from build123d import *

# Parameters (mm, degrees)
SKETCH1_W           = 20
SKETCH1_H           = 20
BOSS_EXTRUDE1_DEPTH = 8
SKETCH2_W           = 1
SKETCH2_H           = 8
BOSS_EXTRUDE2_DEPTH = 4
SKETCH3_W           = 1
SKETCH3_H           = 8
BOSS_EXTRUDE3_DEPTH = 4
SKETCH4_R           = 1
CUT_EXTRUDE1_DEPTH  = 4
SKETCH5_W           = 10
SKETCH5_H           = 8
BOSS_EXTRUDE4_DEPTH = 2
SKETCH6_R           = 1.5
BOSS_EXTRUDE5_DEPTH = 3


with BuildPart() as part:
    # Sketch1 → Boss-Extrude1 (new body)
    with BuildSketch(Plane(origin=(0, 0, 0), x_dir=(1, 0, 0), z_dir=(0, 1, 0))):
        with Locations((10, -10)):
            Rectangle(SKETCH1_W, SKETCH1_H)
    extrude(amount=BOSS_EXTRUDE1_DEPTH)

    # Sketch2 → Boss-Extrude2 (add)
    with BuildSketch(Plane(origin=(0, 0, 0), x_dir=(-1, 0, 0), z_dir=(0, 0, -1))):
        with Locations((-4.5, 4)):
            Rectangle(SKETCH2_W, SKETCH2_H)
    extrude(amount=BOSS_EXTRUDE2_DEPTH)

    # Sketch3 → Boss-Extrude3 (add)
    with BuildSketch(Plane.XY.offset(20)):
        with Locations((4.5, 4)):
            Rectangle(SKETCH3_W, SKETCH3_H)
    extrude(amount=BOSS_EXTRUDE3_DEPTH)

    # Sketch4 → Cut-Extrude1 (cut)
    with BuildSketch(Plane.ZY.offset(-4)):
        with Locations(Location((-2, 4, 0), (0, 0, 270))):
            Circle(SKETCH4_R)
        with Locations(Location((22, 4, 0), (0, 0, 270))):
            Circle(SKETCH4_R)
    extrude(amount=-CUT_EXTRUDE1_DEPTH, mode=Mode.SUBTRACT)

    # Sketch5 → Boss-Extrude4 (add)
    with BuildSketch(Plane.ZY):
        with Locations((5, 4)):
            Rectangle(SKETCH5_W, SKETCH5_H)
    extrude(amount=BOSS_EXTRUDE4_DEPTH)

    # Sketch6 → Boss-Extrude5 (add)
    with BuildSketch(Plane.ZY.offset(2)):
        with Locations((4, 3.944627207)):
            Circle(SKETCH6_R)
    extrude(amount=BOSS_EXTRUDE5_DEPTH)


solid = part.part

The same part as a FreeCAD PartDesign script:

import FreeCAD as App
import Part
import Sketcher
from FreeCAD import Vector
Q = App.Units.Quantity


def add_polygon(sketch, points):
    """Adds a closed chain of lines whose ends are joined by coincident constraints."""
    first, n = sketch.GeometryCount, len(points)
    for a, b in zip(points, points[1:] + points[:1]):
        sketch.addGeometry(Part.LineSegment(App.Vector(*a, 0), App.Vector(*b, 0)), False)
    for i in range(n):
        sketch.addConstraint(Sketcher.Constraint("Coincident", first + i, 2, first + (i + 1) % n, 1))

doc = App.newDocument("Part")
body = doc.addObject("PartDesign::Body", "Body")

# Sketch on XZ plane
sketch1 = doc.addObject("Sketcher::SketchObject", "Sketch")
body.addObject(sketch1)
sketch1.AttachmentSupport = (doc.XZ_Plane, [""])
sketch1.MapMode = "FlatFace"
add_polygon(sketch1, [(0, 0), (0, 20), (20, 20), (20, 0)])  # lines 0-3
sketch1.addConstraint(Sketcher.Constraint("Vertical", 0))
sketch1.addConstraint(Sketcher.Constraint("Horizontal", 1))
sketch1.addConstraint(Sketcher.Constraint("Vertical", 2))
sketch1.addConstraint(Sketcher.Constraint("Horizontal", 3))
sketch1.addConstraint(Sketcher.Constraint("Coincident", 3, 2, -1, 1))
sketch1.addConstraint(Sketcher.Constraint("Equal", 3, 0))
sketch1.addConstraint(Sketcher.Constraint("DistanceX", 1, 1, 1, 2, Q("20 mm")))
pad1 = doc.addObject("PartDesign::Pad", "Pad")
body.addObject(pad1)
pad1.Profile = sketch1
pad1.Length = 8
pad1.Reversed = True

# Sketch on XY plane
sketch2 = doc.addObject("Sketcher::SketchObject", "Sketch001")
body.addObject(sketch2)
sketch2.AttachmentSupport = (doc.XY_Plane, [""])
sketch2.MapMode = "FlatFace"
add_polygon(sketch2, [(5, 8), (5, 0), (4, 0), (4, 8)])  # lines 0-3
sketch2.addConstraint(Sketcher.Constraint("Vertical", 0))
sketch2.addConstraint(Sketcher.Constraint("Horizontal", 1))
sketch2.addConstraint(Sketcher.Constraint("Vertical", 2))
sketch2.addConstraint(Sketcher.Constraint("Horizontal", 3))
sketch2.addConstraint(Sketcher.Constraint("PointOnObject", 0, 2, -1))
sketch2.addConstraint(Sketcher.Constraint("DistanceX", 1, 2, 1, 1, Q("1 mm")))
sketch2.addConstraint(Sketcher.Constraint("DistanceY", 0, 2, 0, 1, Q("8 mm")))
sketch2.addConstraint(Sketcher.Constraint("DistanceX", -1, 1, 0, 2, Q("5 mm")))
pad2 = doc.addObject("PartDesign::Pad", "Pad001")
body.addObject(pad2)
pad2.Profile = sketch2
pad2.Length = 4
pad2.Reversed = True

# Sketch on XY plane
sketch3 = doc.addObject("Sketcher::SketchObject", "Sketch002")
body.addObject(sketch3)
sketch3.AttachmentSupport = (doc.XY_Plane, [""])
sketch3.MapMode = "FlatFace"
sketch3.AttachmentOffset = App.Placement(Vector(0, 0, 20), App.Rotation())
add_polygon(sketch3, [(4, 8), (4, 0), (5, 0), (5, 8)])  # lines 0-3
sketch3.addConstraint(Sketcher.Constraint("Vertical", 0))
sketch3.addConstraint(Sketcher.Constraint("Horizontal", 1))
sketch3.addConstraint(Sketcher.Constraint("Vertical", 2))
sketch3.addConstraint(Sketcher.Constraint("Horizontal", 3))
sketch3.addConstraint(Sketcher.Constraint("PointOnObject", 0, 2, -1))
sketch3.addConstraint(Sketcher.Constraint("DistanceX", 1, 1, 1, 2, Q("1 mm")))
sketch3.addConstraint(Sketcher.Constraint("DistanceY", 0, 2, 0, 1, Q("8 mm")))
sketch3.addConstraint(Sketcher.Constraint("DistanceX", -1, 1, 0, 2, Q("4 mm")))
pad3 = doc.addObject("PartDesign::Pad", "Pad002")
body.addObject(pad3)
pad3.Profile = sketch3
pad3.Length = 4

# Sketch on YZ plane
sketch4 = doc.addObject("Sketcher::SketchObject", "Sketch003")
body.addObject(sketch4)
sketch4.AttachmentSupport = (doc.YZ_Plane, [""])
sketch4.MapMode = "FlatFace"
sketch4.AttachmentOffset = App.Placement(Vector(0, 0, 4), App.Rotation())
sketch4.addGeometry(Part.Circle(Vector(4, -2, 0), Vector(0, 0, 1), 1), False)
sketch4.addGeometry(Part.Circle(Vector(4, 22, 0), Vector(0, 0, 1), 1), False)
sketch4.addConstraint(Sketcher.Constraint("Equal", 0, 1))
sketch4.addConstraint(Sketcher.Constraint("Vertical", 0, 3, 1, 3))
sketch4.addConstraint(Sketcher.Constraint("Diameter", 0, Q("2 mm")))
sketch4.addConstraint(Sketcher.Constraint("DistanceX", -1, 1, 0, 3, Q("4 mm")))
sketch4.addConstraint(Sketcher.Constraint("DistanceY", 0, 3, -1, 1, Q("2 mm")))
sketch4.addConstraint(Sketcher.Constraint("DistanceY", -1, 1, 1, 3, Q("22 mm")))
pocket1 = doc.addObject("PartDesign::Pocket", "Pocket")
body.addObject(pocket1)
pocket1.Profile = sketch4
pocket1.Length = 4
pocket1.Reversed = True

# Sketch on YZ plane
sketch5 = doc.addObject("Sketcher::SketchObject", "Sketch004")
body.addObject(sketch5)
sketch5.AttachmentSupport = (doc.YZ_Plane, [""])
sketch5.MapMode = "FlatFace"
add_polygon(sketch5, [(8, 0), (0, 0), (0, 10), (8, 10)])  # lines 0-3
sketch5.addConstraint(Sketcher.Constraint("Horizontal", 0))
sketch5.addConstraint(Sketcher.Constraint("Vertical", 1))
sketch5.addConstraint(Sketcher.Constraint("Horizontal", 2))
sketch5.addConstraint(Sketcher.Constraint("Vertical", 3))
sketch5.addConstraint(Sketcher.Constraint("Coincident", 0, 2, -1, 1))
sketch5.addConstraint(Sketcher.Constraint("DistanceX", 0, 2, 0, 1, Q("8 mm")))
sketch5.addConstraint(Sketcher.Constraint("DistanceY", 1, 1, 1, 2, Q("10 mm")))
pad4 = doc.addObject("PartDesign::Pad", "Pad003")
body.addObject(pad4)
pad4.Profile = sketch5
pad4.Length = 2
pad4.Reversed = True

# Sketch on YZ plane
sketch6 = doc.addObject("Sketcher::SketchObject", "Sketch005")
body.addObject(sketch6)
sketch6.AttachmentSupport = (doc.YZ_Plane, [""])
sketch6.MapMode = "FlatFace"
sketch6.AttachmentOffset = App.Placement(Vector(0, 0, -2), App.Rotation())
sketch6.addGeometry(Part.Circle(Vector(3.9, 4, 0), Vector(0, 0, 1), 1.5), False)
sketch6.addConstraint(Sketcher.Constraint("Diameter", 0, Q("3 mm")))
sketch6.addConstraint(Sketcher.Constraint("DistanceY", -1, 1, 0, 3, Q("4 mm")))
sketch6.addConstraint(Sketcher.Constraint("DistanceX", -1, 1, 0, 3, Q("3.944627 mm")))
pad5 = doc.addObject("PartDesign::Pad", "Pad004")
body.addObject(pad5)
pad5.Profile = sketch6
pad5.Length = 3
pad5.Reversed = True

doc.recompute()
